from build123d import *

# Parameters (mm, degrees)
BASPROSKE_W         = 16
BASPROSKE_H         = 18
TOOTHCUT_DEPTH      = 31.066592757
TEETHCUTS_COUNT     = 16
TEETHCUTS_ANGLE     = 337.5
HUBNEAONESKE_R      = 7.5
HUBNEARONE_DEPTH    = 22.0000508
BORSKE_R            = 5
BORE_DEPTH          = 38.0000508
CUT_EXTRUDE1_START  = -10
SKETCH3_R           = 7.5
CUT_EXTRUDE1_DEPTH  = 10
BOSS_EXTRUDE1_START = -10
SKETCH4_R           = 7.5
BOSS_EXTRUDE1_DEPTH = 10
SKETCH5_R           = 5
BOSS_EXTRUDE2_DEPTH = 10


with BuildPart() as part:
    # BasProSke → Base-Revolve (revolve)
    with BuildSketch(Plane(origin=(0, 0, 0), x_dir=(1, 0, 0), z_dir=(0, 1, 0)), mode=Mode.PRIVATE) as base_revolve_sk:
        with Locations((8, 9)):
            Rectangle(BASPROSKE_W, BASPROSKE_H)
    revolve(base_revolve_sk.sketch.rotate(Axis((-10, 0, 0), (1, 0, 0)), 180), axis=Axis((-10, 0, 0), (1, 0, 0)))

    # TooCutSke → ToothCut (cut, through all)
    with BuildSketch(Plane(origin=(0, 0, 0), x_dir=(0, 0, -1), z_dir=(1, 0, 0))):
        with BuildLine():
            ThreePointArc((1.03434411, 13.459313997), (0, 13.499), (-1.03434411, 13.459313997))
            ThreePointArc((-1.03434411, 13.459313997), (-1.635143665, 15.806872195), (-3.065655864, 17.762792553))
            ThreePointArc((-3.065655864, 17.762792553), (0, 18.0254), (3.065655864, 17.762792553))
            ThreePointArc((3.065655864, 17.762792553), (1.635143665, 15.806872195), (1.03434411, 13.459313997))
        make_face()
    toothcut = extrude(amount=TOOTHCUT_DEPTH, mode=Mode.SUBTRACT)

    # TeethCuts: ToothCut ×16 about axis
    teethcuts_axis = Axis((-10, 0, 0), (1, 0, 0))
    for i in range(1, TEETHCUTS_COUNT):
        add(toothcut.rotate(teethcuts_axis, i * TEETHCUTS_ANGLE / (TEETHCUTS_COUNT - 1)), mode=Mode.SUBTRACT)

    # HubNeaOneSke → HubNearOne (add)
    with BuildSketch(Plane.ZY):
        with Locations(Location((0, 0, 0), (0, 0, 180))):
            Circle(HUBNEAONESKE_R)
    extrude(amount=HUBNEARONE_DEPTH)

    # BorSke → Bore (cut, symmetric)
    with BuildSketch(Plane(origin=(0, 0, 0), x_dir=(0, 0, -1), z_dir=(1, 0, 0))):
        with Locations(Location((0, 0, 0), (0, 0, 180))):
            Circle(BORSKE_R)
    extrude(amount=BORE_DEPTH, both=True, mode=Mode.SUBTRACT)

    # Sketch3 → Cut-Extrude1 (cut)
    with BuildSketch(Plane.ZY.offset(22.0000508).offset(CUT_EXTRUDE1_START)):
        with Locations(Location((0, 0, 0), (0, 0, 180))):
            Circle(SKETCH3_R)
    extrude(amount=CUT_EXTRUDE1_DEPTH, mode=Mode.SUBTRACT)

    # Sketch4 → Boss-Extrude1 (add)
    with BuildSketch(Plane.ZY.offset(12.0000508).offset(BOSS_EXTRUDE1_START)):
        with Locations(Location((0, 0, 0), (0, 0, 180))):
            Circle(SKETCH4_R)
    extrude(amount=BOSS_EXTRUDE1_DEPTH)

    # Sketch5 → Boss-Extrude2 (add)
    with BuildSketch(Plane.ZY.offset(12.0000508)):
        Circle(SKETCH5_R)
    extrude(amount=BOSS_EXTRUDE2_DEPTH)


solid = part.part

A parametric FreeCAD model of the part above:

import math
import FreeCAD as App
import Part
import Sketcher
from FreeCAD import Vector

doc = App.newDocument("Part")
params = doc.addObject("Spreadsheet::Sheet", "Params")
for row, (alias, value) in enumerate([
    ("sketch1_width", "16 mm"),
    ("sketch1_height", "18 mm"),
    ("revolution_angle", "360 deg"),
    ("sketch2_radius", "6.4 mm"),
    ("sketch3_diameter", "15 mm"),
    ("pad1_length", "22.000051 mm"),
    ("sketch4_diameter", "10 mm"),
    ("pocket2_length", "76.000102 mm"),
    ("sketch5_diameter", "15 mm"),
    ("pocket3_length", "10 mm"),
    ("sketch6_diameter", "15 mm"),
    ("pad2_length", "10 mm"),
    ("sketch7_diameter", "10 mm"),
    ("pad3_length", "10 mm"),
], start=1):
    params.set(f"A{row}", alias)
    params.set(f"B{row}", "=" + value)
    params.setAlias(f"B{row}", alias)

body = doc.addObject("PartDesign::Body", "Body")

# Sketch on XZ plane
sketch1 = body.newObject("Sketcher::SketchObject", "Sketch")
sketch1.AttachmentSupport = (doc.getObject("XZ_Plane"), [""])
sketch1.MapMode = "FlatFace"
sketch1.addGeometry([
    Part.LineSegment(Vector(0, -18, 0), Vector(0, 0, 0)),
    Part.LineSegment(Vector(0, 0, 0), Vector(16, 0, 0)),
    Part.LineSegment(Vector(16, 0, 0), Vector(16, -18, 0)),
    Part.LineSegment(Vector(16, -18, 0), Vector(0, -18, 0)),
], False)
sketch1.addConstraint([
    Sketcher.Constraint("Coincident", 0, 2, 1, 1),
    Sketcher.Constraint("Coincident", 1, 2, 2, 1),
    Sketcher.Constraint("Coincident", 2, 2, 3, 1),
    Sketcher.Constraint("Coincident", 3, 2, 0, 1),
    Sketcher.Constraint("Vertical", 0),
    Sketcher.Constraint("Horizontal", 1),
    Sketcher.Constraint("Vertical", 2),
    Sketcher.Constraint("Horizontal", 3),
    Sketcher.Constraint("Coincident", 0, 2, -1, 1),
    Sketcher.Constraint("DistanceX", 1, 1, 1, 2, 16.0),
    Sketcher.Constraint("DistanceY", 0, 1, 0, 2, 18.0),
])
sketch1.setExpression("Constraints[9]", "Params.sketch1_width")
sketch1.setExpression("Constraints[10]", "Params.sketch1_height")
revolution = body.newObject("PartDesign::Revolution", "Revolution")
revolution.Profile = sketch1
revolution.ReferenceAxis = (sketch1, ["H_Axis"])
revolution.setExpression("Angle", "Params.revolution_angle")

# Sketch on YZ plane
sketch2 = body.newObject("Sketcher::SketchObject", "Sketch001")
sketch2.AttachmentSupport = (doc.getObject("YZ_Plane"), [""])
sketch2.MapMode = "FlatFace"
sketch2.addGeometry([
    Part.ArcOfCircle(Part.Circle(Vector(0, 0, 0), Vector(0, 0, 1), 13.5), math.radians(-4.39), math.radians(4.39)),
    Part.ArcOfCircle(Part.Circle(Vector(13.1, -7.4, 0), Vector(0, 0, 1), 6.4), math.radians(43), math.radians(87)),
    Part.ArcOfCircle(Part.Circle(Vector(0, 0, 0), Vector(0, 0, 1), 18), math.radians(-9.79), math.radians(9.79)),
    Part.ArcOfCircle(Part.Circle(Vector(13.1, 7.4, 0), Vector(0, 0, 1), 6.4), math.radians(-87), math.radians(-43)),
], False)
sketch2.addConstraint([
    Sketcher.Constraint("Coincident", 0, 1, 1, 2),
    Sketcher.Constraint("Coincident", 1, 1, 2, 1),
    Sketcher.Constraint("Coincident", 2, 2, 3, 2),
    Sketcher.Constraint("Coincident", 3, 1, 0, 2),
    Sketcher.Constraint("Coincident", 0, 3, -1, 1),
    Sketcher.Constraint("Coincident", 2, 3, -1, 1),
    Sketcher.Constraint("Equal", 1, 3),
    Sketcher.Constraint("Symmetric", 1, 3, 3, 3, -1),
    Sketcher.Constraint("Radius", 1, 6.4),
    Sketcher.Constraint("Radius", 0, 13.499),
    Sketcher.Constraint("Radius", 2, 18.0254),
    Sketcher.Constraint("DistanceY", 0, 1, 2, 2, 4.1),
    Sketcher.Constraint("DistanceY", 1, 3, 3, 3, 14.84559),
])
sketch2.setExpression("Constraints[8]", "Params.sketch2_radius")
pocket1 = body.newObject("PartDesign::Pocket", "Pocket")
pocket1.Profile = sketch2
pocket1.Type = "ThroughAll"
pocket1.Reversed = True
doc.recompute()

polarpattern = body.newObject("PartDesign::PolarPattern", "PolarPattern")
polarpattern.Originals = [pocket1]
polarpattern.Axis = (doc.getObject("X_Axis"), [""])
polarpattern.Angle = 360
polarpattern.Occurrences = 16
body.Tip = polarpattern

# Sketch on YZ plane
sketch3 = body.newObject("Sketcher::SketchObject", "Sketch002")
sketch3.AttachmentSupport = (doc.getObject("YZ_Plane"), [""])
sketch3.MapMode = "FlatFace"
sketch3.addGeometry(Part.Circle(Vector(0, 0, 0), Vector(0, 0, 1), 8), False)
sketch3.addConstraint([
    Sketcher.Constraint("Coincident", 0, 3, -1, 1),
    Sketcher.Constraint("Diameter", 0, 15.0),
])
sketch3.setExpression("Constraints[1]", "Params.sketch3_diameter")
pad1 = body.newObject("PartDesign::Pad", "Pad")
pad1.Profile = sketch3
pad1.setExpression("Length", "Params.pad1_length")
pad1.Reversed = True

# Sketch on YZ plane
sketch4 = body.newObject("Sketcher::SketchObject", "Sketch003")
sketch4.AttachmentSupport = (doc.getObject("YZ_Plane"), [""])
sketch4.MapMode = "FlatFace"
sketch4.addGeometry(Part.Circle(Vector(0, 0, 0), Vector(0, 0, 1), 5), False)
sketch4.addConstraint([
    Sketcher.Constraint("Coincident", 0, 3, -1, 1),
    Sketcher.Constraint("Diameter", 0, 10.0),
])
sketch4.setExpression("Constraints[1]", "Params.sketch4_diameter")
pocket2 = body.newObject("PartDesign::Pocket", "Pocket001")
pocket2.Profile = sketch4
pocket2.setExpression("Length", "Params.pocket2_length")
pocket2.Midplane = True

# Sketch on YZ plane
sketch5 = body.newObject("Sketcher::SketchObject", "Sketch004")
sketch5.AttachmentSupport = (doc.getObject("YZ_Plane"), [""])
sketch5.MapMode = "FlatFace"
sketch5.AttachmentOffset = App.Placement(Vector(0, 0, -12.000051), App.Rotation())
sketch5.addGeometry(Part.Circle(Vector(0, 0, 0), Vector(0, 0, 1), 8), False)
sketch5.addConstraint([
    Sketcher.Constraint("Coincident", 0, 3, -1, 1),
    Sketcher.Constraint("Diameter", 0, 15.0),
])
sketch5.setExpression("Constraints[1]", "Params.sketch5_diameter")
pocket3 = body.newObject("PartDesign::Pocket", "Pocket002")
pocket3.Profile = sketch5
pocket3.setExpression("Length", "Params.pocket3_length")

# Sketch on YZ plane
sketch6 = body.newObject("Sketcher::SketchObject", "Sketch005")
sketch6.AttachmentSupport = (doc.getObject("YZ_Plane"), [""])
sketch6.MapMode = "FlatFace"
sketch6.AttachmentOffset = App.Placement(Vector(0, 0, -2.000051), App.Rotation())
sketch6.addGeometry(Part.Circle(Vector(0, 0, 0), Vector(0, 0, 1), 8), False)
sketch6.addConstraint([
    Sketcher.Constraint("Coincident", 0, 3, -1, 1),
    Sketcher.Constraint("Diameter", 0, 15.0),
])
sketch6.setExpression("Constraints[1]", "Params.sketch6_diameter")
pad2 = body.newObject("PartDesign::Pad", "Pad001")
pad2.Profile = sketch6
pad2.setExpression("Length", "Params.pad2_length")
pad2.Reversed = True

# Sketch on YZ plane
sketch7 = body.newObject("Sketcher::SketchObject", "Sketch006")
sketch7.AttachmentSupport = (doc.getObject("YZ_Plane"), [""])
sketch7.MapMode = "FlatFace"
sketch7.AttachmentOffset = App.Placement(Vector(0, 0, -12.000051), App.Rotation())
sketch7.addGeometry(Part.Circle(Vector(0, 0, 0), Vector(0, 0, 1), 5), False)
sketch7.addConstraint([
    Sketcher.Constraint("Coincident", 0, 3, -1, 1),
    Sketcher.Constraint("Diameter", 0, 10.0),
])
sketch7.setExpression("Constraints[1]", "Params.sketch7_diameter")
pad3 = body.newObject("PartDesign::Pad", "Pad002")
pad3.Profile = sketch7
pad3.setExpression("Length", "Params.pad3_length")
pad3.Reversed = True

doc.recompute()
